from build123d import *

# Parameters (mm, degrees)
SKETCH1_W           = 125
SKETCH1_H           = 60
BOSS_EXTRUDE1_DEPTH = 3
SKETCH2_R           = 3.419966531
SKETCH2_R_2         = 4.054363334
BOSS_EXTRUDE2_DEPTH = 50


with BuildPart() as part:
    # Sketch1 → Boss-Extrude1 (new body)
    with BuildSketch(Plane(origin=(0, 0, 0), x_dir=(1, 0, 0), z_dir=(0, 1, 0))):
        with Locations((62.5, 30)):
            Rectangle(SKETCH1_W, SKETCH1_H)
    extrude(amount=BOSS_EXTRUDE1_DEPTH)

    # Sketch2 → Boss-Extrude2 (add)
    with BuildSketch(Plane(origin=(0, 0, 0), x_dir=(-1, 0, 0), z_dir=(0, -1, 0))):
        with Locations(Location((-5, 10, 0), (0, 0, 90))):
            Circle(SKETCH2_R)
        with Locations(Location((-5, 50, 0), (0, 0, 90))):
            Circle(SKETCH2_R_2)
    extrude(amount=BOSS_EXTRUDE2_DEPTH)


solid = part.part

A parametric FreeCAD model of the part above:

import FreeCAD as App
import Part
import Sketcher
Q = App.Units.Quantity

doc = App.newDocument("Part")
body = doc.addObject("PartDesign::Body", "Body")

# Sketch on XZ plane
sketch1 = body.newObject("Sketcher::SketchObject", "Sketch")
sketch1.AttachmentSupport = (doc.getObject("XZ_Plane"), [""])
sketch1.MapMode = "FlatFace"
sketch1.addGeometry([
    Part.LineSegment(App.Vector(0, -60, 0), App.Vector(0, 0, 0)),
    Part.LineSegment(App.Vector(0, 0, 0), App.Vector(125, 0, 0)),
    Part.LineSegment(App.Vector(125, 0, 0), App.Vector(125, -60, 0)),
    Part.LineSegment(App.Vector(125, -60, 0), App.Vector(0, -60, 0)),
], False)
sketch1.addConstraint([
    Sketcher.Constraint("Coincident", 0, 2, 1, 1),
    Sketcher.Constraint("Coincident", 1, 2, 2, 1),
    Sketcher.Constraint("Coincident", 2, 2, 3, 1),
    Sketcher.Constraint("Coincident", 3, 2, 0, 1),
    Sketcher.Constraint("Vertical", 0),
    Sketcher.Constraint("Horizontal", 1),
    Sketcher.Constraint("Vertical", 2),
    Sketcher.Constraint("Horizontal", 3),
    Sketcher.Constraint("Coincident", 0, 2, -1, 1),
    Sketcher.Constraint("DistanceX", 1, 1, 1, 2, Q("125 mm")),
    Sketcher.Constraint("DistanceY", 0, 1, 0, 2, Q("60 mm")),
])
pad1 = body.newObject("PartDesign::Pad", "Pad")
pad1.Profile = sketch1
pad1.Length = 3
pad1.Reversed = True

# Sketch on XZ plane
sketch2 = body.newObject("Sketcher::SketchObject", "Sketch001")
sketch2.AttachmentSupport = (doc.getObject("XZ_Plane"), [""])
sketch2.MapMode = "FlatFace"
sketch2.addGeometry([
    Part.Circle(App.Vector(5, -10, 0), App.Vector(0, 0, 1), 3.4),
    Part.Circle(App.Vector(5, -50, 0), App.Vector(0, 0, 1), 4.1),
], False)
sketch2.addConstraint([
    Sketcher.Constraint("Vertical", 0, 3, 1, 3),
    Sketcher.Constraint("DistanceX", -1, 1, 0, 3, Q("5 mm")),
    Sketcher.Constraint("DistanceY", 0, 3, -1, 1, Q("10 mm")),
    Sketcher.Constraint("DistanceY", 1, 3, -1, 1, Q("50 mm")),
    Sketcher.Constraint("Diameter", 0, Q("6.839933 mm")),
    Sketcher.Constraint("Diameter", 1, Q("8.108727 mm")),
])
pad2 = body.newObject("PartDesign::Pad", "Pad001")
pad2.Profile = sketch2
pad2.Length = 50

doc.recompute()
